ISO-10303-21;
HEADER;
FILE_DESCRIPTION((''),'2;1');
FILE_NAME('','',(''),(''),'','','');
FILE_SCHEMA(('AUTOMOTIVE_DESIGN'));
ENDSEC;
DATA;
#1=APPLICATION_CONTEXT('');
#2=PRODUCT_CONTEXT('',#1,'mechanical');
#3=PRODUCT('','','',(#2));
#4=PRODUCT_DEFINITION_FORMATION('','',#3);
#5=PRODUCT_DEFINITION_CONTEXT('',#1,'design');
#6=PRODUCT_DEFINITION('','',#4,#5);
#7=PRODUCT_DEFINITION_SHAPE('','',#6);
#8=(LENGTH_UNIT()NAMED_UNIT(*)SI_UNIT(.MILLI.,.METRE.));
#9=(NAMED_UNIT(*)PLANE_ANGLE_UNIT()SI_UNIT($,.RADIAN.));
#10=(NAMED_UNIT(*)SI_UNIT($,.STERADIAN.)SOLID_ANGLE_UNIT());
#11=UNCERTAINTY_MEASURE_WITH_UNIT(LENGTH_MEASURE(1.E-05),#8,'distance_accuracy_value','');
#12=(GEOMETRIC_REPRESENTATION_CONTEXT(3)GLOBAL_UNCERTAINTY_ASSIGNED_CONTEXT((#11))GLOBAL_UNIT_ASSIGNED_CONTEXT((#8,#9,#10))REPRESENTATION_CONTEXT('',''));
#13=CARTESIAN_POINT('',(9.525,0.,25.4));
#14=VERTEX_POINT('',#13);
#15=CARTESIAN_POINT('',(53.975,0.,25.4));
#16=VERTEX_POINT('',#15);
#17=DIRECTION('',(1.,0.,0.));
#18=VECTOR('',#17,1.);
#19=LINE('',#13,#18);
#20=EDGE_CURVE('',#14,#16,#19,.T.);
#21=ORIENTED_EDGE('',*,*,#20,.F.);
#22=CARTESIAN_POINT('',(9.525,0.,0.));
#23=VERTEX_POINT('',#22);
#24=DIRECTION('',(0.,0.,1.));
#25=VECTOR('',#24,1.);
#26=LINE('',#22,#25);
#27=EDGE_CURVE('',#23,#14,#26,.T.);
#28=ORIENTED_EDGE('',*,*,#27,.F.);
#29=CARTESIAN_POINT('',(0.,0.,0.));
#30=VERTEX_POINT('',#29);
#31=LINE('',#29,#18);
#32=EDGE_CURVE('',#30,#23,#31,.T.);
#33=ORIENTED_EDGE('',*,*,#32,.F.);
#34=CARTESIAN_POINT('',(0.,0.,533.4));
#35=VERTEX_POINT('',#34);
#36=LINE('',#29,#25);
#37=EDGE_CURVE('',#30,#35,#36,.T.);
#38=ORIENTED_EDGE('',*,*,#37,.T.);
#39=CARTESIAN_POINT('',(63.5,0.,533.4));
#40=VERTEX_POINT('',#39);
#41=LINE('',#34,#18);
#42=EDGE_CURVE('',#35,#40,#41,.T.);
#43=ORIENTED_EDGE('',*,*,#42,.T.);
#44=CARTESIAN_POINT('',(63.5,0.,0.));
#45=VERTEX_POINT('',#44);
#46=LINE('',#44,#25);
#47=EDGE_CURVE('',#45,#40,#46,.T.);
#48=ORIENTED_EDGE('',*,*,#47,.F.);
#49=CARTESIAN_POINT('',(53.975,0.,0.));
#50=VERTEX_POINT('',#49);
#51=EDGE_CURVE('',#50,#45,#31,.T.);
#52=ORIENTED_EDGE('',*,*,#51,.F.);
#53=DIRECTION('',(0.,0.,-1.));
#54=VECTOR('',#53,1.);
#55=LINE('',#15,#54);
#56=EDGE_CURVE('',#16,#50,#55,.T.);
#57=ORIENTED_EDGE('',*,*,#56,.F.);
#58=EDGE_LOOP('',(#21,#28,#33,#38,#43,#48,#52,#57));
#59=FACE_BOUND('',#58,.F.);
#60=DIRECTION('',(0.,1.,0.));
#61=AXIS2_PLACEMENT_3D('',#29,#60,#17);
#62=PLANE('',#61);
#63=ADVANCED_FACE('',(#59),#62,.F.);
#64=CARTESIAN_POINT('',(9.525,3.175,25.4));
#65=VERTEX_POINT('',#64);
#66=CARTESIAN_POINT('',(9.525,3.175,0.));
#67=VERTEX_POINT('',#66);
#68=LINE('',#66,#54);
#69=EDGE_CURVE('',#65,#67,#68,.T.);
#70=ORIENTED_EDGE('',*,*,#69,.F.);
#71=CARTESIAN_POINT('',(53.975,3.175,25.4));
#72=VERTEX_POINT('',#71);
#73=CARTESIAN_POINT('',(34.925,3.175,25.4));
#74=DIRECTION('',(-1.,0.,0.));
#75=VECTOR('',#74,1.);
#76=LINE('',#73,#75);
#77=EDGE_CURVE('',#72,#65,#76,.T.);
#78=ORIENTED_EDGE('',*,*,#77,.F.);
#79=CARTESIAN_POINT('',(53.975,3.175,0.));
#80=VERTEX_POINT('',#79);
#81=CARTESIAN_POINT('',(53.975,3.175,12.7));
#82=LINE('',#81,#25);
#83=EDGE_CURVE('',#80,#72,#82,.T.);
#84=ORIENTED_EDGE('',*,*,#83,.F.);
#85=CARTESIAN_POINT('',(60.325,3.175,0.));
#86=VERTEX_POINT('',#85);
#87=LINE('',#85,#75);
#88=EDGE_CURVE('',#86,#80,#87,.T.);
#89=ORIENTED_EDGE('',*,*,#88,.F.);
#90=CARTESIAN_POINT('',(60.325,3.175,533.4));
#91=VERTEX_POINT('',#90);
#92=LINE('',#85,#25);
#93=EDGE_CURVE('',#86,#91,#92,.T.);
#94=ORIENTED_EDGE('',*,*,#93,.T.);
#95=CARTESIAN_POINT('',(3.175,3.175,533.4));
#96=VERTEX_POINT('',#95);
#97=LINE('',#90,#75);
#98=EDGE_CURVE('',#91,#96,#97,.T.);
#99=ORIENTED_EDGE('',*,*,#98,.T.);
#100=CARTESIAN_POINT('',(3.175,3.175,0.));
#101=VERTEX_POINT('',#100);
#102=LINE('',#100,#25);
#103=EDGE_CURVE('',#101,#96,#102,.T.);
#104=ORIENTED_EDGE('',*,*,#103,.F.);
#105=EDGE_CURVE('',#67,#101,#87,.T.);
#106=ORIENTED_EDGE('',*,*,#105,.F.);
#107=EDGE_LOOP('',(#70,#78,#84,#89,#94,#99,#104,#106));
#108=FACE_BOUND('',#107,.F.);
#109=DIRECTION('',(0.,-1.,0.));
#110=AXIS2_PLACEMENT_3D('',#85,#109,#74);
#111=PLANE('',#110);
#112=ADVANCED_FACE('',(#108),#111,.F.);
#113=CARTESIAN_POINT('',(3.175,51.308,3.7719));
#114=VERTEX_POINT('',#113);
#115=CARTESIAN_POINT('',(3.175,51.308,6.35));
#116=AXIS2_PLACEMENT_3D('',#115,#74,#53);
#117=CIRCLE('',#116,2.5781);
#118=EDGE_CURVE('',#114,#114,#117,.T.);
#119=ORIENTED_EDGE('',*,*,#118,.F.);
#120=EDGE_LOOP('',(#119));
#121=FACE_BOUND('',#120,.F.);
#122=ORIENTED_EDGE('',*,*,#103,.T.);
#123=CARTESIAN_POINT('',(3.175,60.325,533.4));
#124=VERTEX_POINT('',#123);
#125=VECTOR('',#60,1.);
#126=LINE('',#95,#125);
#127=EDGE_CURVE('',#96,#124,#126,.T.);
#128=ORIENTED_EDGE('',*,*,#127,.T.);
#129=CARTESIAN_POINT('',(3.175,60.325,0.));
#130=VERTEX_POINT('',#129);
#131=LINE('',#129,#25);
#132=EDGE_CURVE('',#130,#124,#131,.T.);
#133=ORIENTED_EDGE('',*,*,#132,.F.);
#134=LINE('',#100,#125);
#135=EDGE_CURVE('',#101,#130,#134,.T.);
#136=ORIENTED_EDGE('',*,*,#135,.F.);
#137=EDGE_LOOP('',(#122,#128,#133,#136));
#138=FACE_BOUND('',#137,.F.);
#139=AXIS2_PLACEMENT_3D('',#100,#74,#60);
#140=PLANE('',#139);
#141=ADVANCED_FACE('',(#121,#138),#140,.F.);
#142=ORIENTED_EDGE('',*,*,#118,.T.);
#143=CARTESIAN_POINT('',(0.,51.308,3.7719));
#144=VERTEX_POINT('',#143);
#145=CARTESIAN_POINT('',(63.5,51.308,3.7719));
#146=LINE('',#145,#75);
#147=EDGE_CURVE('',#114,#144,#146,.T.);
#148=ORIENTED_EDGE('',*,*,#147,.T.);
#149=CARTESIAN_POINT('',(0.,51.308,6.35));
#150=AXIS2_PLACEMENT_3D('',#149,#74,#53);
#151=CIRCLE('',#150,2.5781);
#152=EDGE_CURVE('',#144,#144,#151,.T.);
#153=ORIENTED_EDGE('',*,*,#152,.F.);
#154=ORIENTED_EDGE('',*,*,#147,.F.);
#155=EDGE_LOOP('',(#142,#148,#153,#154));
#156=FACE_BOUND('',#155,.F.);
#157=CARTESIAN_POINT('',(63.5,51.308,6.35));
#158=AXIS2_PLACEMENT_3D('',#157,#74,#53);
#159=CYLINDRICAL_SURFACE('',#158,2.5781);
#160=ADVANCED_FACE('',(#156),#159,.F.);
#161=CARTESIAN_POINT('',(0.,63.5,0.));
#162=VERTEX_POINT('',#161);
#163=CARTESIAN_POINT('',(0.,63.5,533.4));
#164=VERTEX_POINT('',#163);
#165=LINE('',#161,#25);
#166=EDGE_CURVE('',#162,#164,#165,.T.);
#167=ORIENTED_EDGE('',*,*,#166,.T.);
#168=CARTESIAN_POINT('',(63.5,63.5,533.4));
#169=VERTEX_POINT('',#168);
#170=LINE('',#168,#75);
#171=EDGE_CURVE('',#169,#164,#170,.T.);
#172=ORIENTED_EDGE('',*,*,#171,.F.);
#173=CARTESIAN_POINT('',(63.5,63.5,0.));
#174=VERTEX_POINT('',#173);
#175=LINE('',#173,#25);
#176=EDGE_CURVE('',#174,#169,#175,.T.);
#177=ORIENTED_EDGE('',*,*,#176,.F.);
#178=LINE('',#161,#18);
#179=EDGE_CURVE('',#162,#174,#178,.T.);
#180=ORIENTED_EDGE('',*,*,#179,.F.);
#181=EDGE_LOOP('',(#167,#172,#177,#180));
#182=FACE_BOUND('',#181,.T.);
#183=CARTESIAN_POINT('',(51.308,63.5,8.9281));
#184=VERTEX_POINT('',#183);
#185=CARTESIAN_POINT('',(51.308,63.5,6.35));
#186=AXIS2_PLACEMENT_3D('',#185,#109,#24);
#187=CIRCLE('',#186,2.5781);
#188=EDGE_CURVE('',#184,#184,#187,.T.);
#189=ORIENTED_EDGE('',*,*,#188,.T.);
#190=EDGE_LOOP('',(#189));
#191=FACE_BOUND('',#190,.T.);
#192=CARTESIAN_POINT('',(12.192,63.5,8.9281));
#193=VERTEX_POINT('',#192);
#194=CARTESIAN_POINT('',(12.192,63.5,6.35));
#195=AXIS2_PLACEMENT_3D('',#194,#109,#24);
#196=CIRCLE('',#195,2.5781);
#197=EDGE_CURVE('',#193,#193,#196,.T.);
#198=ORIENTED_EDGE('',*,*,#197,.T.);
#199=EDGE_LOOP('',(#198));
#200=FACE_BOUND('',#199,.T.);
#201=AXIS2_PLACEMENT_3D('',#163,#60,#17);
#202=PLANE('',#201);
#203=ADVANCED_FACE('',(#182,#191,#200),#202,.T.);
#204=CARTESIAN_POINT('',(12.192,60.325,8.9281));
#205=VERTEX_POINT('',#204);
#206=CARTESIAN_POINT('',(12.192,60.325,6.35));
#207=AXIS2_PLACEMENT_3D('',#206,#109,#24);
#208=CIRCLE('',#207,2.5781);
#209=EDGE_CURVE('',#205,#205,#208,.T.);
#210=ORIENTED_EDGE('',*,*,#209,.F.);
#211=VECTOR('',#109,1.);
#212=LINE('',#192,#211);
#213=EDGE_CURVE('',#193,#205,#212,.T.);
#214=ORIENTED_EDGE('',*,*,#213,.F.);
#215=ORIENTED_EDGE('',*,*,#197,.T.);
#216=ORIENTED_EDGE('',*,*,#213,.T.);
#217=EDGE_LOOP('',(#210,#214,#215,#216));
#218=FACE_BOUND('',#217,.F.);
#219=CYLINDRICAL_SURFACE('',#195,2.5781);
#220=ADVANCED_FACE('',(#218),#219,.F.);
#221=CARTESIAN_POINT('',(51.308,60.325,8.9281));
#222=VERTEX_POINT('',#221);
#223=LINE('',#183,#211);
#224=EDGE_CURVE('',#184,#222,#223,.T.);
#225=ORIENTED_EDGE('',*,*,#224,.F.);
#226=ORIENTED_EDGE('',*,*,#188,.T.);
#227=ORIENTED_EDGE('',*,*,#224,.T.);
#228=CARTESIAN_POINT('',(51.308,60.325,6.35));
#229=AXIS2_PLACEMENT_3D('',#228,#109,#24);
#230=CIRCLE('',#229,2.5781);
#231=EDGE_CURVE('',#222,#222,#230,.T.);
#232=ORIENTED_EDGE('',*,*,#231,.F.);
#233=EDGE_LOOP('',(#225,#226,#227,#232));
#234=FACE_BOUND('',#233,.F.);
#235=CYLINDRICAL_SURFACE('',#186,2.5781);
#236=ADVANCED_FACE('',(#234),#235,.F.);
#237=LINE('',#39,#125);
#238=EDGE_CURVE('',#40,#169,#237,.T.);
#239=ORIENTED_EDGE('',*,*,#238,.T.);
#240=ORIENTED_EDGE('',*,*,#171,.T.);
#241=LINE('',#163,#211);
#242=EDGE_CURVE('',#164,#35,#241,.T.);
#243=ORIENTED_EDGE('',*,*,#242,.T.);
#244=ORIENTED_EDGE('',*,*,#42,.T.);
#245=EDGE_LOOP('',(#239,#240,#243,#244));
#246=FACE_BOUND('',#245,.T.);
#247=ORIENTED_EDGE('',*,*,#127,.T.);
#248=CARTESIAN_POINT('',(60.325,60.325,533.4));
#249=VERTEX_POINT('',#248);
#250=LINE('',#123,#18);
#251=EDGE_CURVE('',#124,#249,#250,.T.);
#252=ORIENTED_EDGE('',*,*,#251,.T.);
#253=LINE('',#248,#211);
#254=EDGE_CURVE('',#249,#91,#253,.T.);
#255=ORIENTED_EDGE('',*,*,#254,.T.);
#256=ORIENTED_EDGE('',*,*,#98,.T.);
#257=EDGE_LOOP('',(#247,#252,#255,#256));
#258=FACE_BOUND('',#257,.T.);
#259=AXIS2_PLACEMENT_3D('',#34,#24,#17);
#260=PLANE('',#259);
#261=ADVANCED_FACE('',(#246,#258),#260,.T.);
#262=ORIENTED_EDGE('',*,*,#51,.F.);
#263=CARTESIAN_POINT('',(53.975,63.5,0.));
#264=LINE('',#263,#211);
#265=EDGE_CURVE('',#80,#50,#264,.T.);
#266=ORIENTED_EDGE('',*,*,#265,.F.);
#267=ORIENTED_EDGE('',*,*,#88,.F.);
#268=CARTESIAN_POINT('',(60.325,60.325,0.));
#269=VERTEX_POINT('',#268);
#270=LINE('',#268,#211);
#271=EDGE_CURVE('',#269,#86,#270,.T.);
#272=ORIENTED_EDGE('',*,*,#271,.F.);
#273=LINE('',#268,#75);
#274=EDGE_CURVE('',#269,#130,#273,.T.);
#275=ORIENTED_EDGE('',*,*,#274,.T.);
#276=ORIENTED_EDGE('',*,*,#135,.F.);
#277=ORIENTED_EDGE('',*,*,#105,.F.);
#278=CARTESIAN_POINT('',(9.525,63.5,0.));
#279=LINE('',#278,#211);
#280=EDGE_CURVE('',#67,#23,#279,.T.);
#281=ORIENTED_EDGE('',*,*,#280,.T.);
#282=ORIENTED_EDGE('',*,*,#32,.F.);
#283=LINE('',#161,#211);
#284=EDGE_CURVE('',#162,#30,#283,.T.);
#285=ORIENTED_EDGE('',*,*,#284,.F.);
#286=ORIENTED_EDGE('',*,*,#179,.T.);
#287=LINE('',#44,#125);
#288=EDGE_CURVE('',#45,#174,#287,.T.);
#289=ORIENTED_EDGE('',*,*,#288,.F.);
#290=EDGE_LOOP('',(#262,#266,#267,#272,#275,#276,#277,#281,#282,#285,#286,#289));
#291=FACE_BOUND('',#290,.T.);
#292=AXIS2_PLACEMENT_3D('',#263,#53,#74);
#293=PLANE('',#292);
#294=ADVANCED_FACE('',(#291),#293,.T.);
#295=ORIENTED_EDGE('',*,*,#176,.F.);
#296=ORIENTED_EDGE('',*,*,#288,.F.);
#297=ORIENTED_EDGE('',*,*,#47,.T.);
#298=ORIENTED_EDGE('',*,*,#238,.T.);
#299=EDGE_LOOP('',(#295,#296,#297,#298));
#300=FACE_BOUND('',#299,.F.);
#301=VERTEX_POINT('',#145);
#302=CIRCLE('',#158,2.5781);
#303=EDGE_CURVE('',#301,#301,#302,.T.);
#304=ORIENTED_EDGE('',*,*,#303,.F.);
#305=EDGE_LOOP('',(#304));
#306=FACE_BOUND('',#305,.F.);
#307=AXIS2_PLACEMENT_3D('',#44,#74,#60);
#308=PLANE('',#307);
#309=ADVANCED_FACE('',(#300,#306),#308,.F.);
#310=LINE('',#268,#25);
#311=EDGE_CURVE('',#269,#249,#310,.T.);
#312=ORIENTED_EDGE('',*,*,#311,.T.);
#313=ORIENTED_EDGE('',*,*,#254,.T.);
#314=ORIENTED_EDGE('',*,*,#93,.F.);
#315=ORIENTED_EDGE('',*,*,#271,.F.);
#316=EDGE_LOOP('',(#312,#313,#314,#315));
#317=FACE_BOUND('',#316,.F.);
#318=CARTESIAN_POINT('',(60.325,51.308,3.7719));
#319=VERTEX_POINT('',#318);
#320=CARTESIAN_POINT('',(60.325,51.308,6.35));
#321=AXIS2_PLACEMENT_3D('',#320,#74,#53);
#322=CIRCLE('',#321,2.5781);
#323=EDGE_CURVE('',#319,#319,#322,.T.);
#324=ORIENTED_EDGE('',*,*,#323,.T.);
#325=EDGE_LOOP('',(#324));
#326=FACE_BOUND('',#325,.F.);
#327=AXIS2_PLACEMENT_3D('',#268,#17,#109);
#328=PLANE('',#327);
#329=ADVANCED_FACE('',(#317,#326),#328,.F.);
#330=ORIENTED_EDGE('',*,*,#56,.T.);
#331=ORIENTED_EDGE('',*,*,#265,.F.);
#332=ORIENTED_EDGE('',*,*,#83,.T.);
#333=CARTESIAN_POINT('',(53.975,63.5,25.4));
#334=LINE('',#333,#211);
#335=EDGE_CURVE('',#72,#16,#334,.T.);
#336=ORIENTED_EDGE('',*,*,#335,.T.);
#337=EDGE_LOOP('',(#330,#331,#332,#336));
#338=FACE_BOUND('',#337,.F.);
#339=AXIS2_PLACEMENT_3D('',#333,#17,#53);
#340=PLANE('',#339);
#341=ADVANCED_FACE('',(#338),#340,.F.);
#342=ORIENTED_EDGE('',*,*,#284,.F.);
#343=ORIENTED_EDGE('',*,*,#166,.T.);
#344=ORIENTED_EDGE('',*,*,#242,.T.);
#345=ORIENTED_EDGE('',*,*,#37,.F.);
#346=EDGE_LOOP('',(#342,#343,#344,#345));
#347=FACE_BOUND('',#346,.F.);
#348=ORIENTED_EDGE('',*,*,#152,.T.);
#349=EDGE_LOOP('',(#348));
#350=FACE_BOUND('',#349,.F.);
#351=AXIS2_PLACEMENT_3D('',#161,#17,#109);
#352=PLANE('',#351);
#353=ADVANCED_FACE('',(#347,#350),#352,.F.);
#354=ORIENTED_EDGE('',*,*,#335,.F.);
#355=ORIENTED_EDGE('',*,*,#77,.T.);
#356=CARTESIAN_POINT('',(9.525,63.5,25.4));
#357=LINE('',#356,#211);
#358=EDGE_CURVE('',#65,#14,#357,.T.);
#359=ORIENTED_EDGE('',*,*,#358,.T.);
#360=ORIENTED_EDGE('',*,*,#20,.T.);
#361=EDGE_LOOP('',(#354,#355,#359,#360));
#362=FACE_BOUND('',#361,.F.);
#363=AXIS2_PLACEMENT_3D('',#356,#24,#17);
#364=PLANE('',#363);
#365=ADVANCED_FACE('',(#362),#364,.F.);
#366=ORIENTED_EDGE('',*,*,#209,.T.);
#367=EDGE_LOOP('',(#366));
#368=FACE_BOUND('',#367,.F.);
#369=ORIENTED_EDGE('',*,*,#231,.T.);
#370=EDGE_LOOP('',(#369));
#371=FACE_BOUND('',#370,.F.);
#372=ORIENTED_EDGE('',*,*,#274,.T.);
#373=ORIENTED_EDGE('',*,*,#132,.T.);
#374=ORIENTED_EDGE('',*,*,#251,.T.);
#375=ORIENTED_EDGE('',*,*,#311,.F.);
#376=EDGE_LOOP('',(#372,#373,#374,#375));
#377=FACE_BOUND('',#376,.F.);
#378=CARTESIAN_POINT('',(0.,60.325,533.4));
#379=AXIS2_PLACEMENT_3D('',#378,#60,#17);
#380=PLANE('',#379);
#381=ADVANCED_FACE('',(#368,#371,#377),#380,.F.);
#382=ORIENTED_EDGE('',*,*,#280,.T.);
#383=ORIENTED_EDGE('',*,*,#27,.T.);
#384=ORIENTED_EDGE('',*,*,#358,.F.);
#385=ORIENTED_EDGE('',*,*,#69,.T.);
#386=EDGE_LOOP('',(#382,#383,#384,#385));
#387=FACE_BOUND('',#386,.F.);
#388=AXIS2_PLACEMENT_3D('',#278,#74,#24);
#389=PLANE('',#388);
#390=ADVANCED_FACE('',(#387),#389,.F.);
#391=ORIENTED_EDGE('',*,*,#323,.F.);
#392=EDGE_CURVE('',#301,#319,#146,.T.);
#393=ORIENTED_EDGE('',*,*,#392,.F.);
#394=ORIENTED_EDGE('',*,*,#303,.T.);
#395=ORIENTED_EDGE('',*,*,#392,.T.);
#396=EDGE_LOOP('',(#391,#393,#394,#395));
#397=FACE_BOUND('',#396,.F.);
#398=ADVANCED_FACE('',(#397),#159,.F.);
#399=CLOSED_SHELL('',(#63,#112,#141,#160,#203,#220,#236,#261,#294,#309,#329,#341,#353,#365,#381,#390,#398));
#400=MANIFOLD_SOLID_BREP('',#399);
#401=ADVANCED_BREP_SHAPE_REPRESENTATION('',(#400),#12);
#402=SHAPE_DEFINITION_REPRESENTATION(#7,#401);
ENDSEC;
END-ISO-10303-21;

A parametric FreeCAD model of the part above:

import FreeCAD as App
import Part
import Sketcher

V = App.Vector
Q = App.Units.Quantity


def add_polygon(sketch, points):
    """Adds a closed chain of lines whose ends are joined by coincident constraints."""
    first, n = sketch.GeometryCount, len(points)
    for a, b in zip(points, points[1:] + points[:1]):
        sketch.addGeometry(Part.LineSegment(App.Vector(*a, 0), App.Vector(*b, 0)), False)
    for i in range(n):
        sketch.addConstraint(Sketcher.Constraint("Coincident", first + i, 2, first + (i + 1) % n, 1))

doc = App.newDocument("Part")
params = doc.addObject("Spreadsheet::Sheet", "Params")
for row, (alias, value) in enumerate([
    ("sketch1_width", "2.5 in"),
    ("pad1_length", "21 in"),
    ("sketch2_height", "1 in"),
    ("sketch2_width", "1.75 in"),
    ("pocket1_length", "2.5 in"),
    ("sketch3_height", "1 in"),
    ("sketch3_width", "1.75 in"),
    ("pad2_length", "0.125 in"),
    ("sketch4_diameter", "0.203 in"),
    ("hole_diameter", "0.203 in"),
    ("hole_depth", "1 in"),
    ("sketch5_diameter", "0.203 in"),
    ("hole2_diameter", "0.203 in"),
    ("hole2_depth", "3 in"),
], start=1):
    params.set(f"A{row}", alias)
    params.set(f"B{row}", "=" + value)
    params.setAlias(f"B{row}", alias)

body = doc.addObject("PartDesign::Body", "Body")

# Sketch on XY plane
sketch1 = body.newObject("Sketcher::SketchObject", "Sketch")
sketch1.AttachmentSupport = (doc.getObject("XY_Plane"), [""])
sketch1.MapMode = "FlatFace"
add_polygon(sketch1, [(0, 63.5), (0, 0), (63.5, 0), (63.5, 63.5)])  # lines 0-3
add_polygon(sketch1, [(3.175, 3.175), (3.175, 60.325), (60.325, 60.325), (60.325, 3.175)])  # lines 4-7
sketch1.addConstraint([
    Sketcher.Constraint("Vertical", 0),
    Sketcher.Constraint("Horizontal", 1),
    Sketcher.Constraint("Vertical", 2),
    Sketcher.Constraint("Horizontal", 3),
    Sketcher.Constraint("Vertical", 4),
    Sketcher.Constraint("Horizontal", 5),
    Sketcher.Constraint("Vertical", 6),
    Sketcher.Constraint("Horizontal", 7),
    Sketcher.Constraint("Coincident", 0, 2, -1, 1),
    Sketcher.Constraint("Equal", 3, 0),
    Sketcher.Constraint("Equal", 7, 4),
    Sketcher.Constraint("DistanceX", 1, 1, 1, 2, Q("2.5 in")),
    Sketcher.Constraint("DistanceX", -1, 1, 4, 2, Q("0.125 in")),
    Sketcher.Constraint("DistanceY", -1, 1, 6, 2, Q("0.125 in")),
    Sketcher.Constraint("DistanceY", 4, 2, 3, 2, Q("0.125 in")),
])
sketch1.setExpression("Constraints[19]", "Params.sketch1_width")
pad1 = body.newObject("PartDesign::Pad", "Pad")
pad1.Profile = sketch1
pad1.setExpression("Length", "Params.pad1_length")

# Sketch on XZ plane
sketch2 = body.newObject("Sketcher::SketchObject", "Sketch001")
sketch2.AttachmentSupport = (doc.getObject("XZ_Plane"), [""])
sketch2.MapMode = "FlatFace"
sketch2.AttachmentOffset = App.Placement(V(0, 0, -2.5 * 25.4), App.Rotation())
add_polygon(sketch2, [(53.975, 0), (9.525, 0), (9.525, 25.4), (53.975, 25.4)])  # lines 0-3
sketch2.addConstraint([
    Sketcher.Constraint("Horizontal", 0),
    Sketcher.Constraint("Vertical", 1),
    Sketcher.Constraint("Horizontal", 2),
    Sketcher.Constraint("Vertical", 3),
    Sketcher.Constraint("PointOnObject", 0, 2, -1),
    Sketcher.Constraint("DistanceY", 1, 1, 1, 2, Q("1 in")),
    Sketcher.Constraint("DistanceX", 0, 2, 0, 1, Q("1.75 in")),
    Sketcher.Constraint("DistanceX", -1, 1, 0, 2, Q("0.375 in")),
])
sketch2.setExpression("Constraints[9]", "Params.sketch2_height")
sketch2.setExpression("Constraints[10]", "Params.sketch2_width")
pocket1 = body.newObject("PartDesign::Pocket", "Pocket")
pocket1.Profile = sketch2
pocket1.setExpression("Length", "Params.pocket1_length")
pocket1.Reversed = True

# Sketch on XZ plane
sketch3 = body.newObject("Sketcher::SketchObject", "Sketch002")
sketch3.AttachmentSupport = (doc.getObject("XZ_Plane"), [""])
sketch3.MapMode = "FlatFace"
sketch3.AttachmentOffset = App.Placement(V(0, 0, -2.5 * 25.4), App.Rotation())
add_polygon(sketch3, [(9.525, 25.4), (53.975, 25.4), (53.975, 0), (9.525, 0)])  # lines 0-3
sketch3.addConstraint([
    Sketcher.Constraint("Horizontal", 0),
    Sketcher.Constraint("Vertical", 1),
    Sketcher.Constraint("Horizontal", 2),
    Sketcher.Constraint("Vertical", 3),
    Sketcher.Constraint("PointOnObject", 1, 2, -1),
    Sketcher.Constraint("DistanceY", 1, 2, 1, 1, Q("1 in")),
    Sketcher.Constraint("DistanceX", 0, 1, 0, 2, Q("1.75 in")),
    Sketcher.Constraint("DistanceX", -1, 1, 0, 2, Q("2.125 in")),
])
sketch3.setExpression("Constraints[9]", "Params.sketch3_height")
sketch3.setExpression("Constraints[10]", "Params.sketch3_width")
pad2 = body.newObject("PartDesign::Pad", "Pad001")
pad2.Profile = sketch3
pad2.setExpression("Length", "Params.pad2_length")

# Sketch on XZ plane
sketch4 = body.newObject("Sketcher::SketchObject", "Sketch003")
sketch4.AttachmentSupport = (doc.getObject("XZ_Plane"), [""])
sketch4.MapMode = "FlatFace"
sketch4.AttachmentOffset = App.Placement(V(0, 0, -2.5 * 25.4), App.Rotation())
sketch4.addGeometry([
    Part.Circle(V(12.192, 6.35, 0), V(0, 0, 1), 2.5781),
    Part.Circle(V(51.308, 6.35, 0), V(0, 0, 1), 2.5781),
], False)
sketch4.addConstraint([
    Sketcher.Constraint("Equal", 0, 1),
    Sketcher.Constraint("Horizontal", 0, 3, 1, 3),
    Sketcher.Constraint("Diameter", 0, Q("0.203 in")),
    Sketcher.Constraint("DistanceX", -1, 1, 0, 3, Q("0.48 in")),
    Sketcher.Constraint("DistanceY", -1, 1, 0, 3, Q("0.25 in")),
    Sketcher.Constraint("DistanceX", -1, 1, 1, 3, Q("2.02 in")),
])
sketch4.setExpression("Constraints[2]", "Params.sketch4_diameter")
doc.recompute()
hole = body.newObject("PartDesign::Hole", "Hole")
hole.Profile = sketch4
hole.ThreadType = "None"
hole.setExpression("Diameter", "Params.hole_diameter")
hole.DepthType = "Dimension"
hole.setExpression("Depth", "Params.hole_depth")
hole.DrillPoint = "Angled"
hole.DrillPointAngle = 118
hole.Reversed = True

# Sketch on YZ plane
sketch5 = body.newObject("Sketcher::SketchObject", "Sketch004")
sketch5.AttachmentSupport = (doc.getObject("YZ_Plane"), [""])
sketch5.MapMode = "FlatFace"
sketch5.AttachmentOffset = App.Placement(V(0, 0, 2.5 * 25.4), App.Rotation())
sketch5.addGeometry(Part.Circle(V(51.308, 6.35, 0), V(0, 0, 1), 2.5781), False)
sketch5.addConstraint([
    Sketcher.Constraint("Diameter", 0, Q("0.203 in")),
    Sketcher.Constraint("DistanceX", -1, 1, 0, 3, Q("2.02 in")),
    Sketcher.Constraint("DistanceY", -1, 1, 0, 3, Q("0.25 in")),
])
sketch5.setExpression("Constraints[0]", "Params.sketch5_diameter")
doc.recompute()
hole2 = body.newObject("PartDesign::Hole", "Hole001")
hole2.Profile = sketch5
hole2.ThreadType = "None"
hole2.setExpression("Diameter", "Params.hole2_diameter")
hole2.DepthType = "Dimension"
hole2.setExpression("Depth", "Params.hole2_depth")
hole2.DrillPoint = "Angled"
hole2.DrillPointAngle = 118

doc.recompute()
